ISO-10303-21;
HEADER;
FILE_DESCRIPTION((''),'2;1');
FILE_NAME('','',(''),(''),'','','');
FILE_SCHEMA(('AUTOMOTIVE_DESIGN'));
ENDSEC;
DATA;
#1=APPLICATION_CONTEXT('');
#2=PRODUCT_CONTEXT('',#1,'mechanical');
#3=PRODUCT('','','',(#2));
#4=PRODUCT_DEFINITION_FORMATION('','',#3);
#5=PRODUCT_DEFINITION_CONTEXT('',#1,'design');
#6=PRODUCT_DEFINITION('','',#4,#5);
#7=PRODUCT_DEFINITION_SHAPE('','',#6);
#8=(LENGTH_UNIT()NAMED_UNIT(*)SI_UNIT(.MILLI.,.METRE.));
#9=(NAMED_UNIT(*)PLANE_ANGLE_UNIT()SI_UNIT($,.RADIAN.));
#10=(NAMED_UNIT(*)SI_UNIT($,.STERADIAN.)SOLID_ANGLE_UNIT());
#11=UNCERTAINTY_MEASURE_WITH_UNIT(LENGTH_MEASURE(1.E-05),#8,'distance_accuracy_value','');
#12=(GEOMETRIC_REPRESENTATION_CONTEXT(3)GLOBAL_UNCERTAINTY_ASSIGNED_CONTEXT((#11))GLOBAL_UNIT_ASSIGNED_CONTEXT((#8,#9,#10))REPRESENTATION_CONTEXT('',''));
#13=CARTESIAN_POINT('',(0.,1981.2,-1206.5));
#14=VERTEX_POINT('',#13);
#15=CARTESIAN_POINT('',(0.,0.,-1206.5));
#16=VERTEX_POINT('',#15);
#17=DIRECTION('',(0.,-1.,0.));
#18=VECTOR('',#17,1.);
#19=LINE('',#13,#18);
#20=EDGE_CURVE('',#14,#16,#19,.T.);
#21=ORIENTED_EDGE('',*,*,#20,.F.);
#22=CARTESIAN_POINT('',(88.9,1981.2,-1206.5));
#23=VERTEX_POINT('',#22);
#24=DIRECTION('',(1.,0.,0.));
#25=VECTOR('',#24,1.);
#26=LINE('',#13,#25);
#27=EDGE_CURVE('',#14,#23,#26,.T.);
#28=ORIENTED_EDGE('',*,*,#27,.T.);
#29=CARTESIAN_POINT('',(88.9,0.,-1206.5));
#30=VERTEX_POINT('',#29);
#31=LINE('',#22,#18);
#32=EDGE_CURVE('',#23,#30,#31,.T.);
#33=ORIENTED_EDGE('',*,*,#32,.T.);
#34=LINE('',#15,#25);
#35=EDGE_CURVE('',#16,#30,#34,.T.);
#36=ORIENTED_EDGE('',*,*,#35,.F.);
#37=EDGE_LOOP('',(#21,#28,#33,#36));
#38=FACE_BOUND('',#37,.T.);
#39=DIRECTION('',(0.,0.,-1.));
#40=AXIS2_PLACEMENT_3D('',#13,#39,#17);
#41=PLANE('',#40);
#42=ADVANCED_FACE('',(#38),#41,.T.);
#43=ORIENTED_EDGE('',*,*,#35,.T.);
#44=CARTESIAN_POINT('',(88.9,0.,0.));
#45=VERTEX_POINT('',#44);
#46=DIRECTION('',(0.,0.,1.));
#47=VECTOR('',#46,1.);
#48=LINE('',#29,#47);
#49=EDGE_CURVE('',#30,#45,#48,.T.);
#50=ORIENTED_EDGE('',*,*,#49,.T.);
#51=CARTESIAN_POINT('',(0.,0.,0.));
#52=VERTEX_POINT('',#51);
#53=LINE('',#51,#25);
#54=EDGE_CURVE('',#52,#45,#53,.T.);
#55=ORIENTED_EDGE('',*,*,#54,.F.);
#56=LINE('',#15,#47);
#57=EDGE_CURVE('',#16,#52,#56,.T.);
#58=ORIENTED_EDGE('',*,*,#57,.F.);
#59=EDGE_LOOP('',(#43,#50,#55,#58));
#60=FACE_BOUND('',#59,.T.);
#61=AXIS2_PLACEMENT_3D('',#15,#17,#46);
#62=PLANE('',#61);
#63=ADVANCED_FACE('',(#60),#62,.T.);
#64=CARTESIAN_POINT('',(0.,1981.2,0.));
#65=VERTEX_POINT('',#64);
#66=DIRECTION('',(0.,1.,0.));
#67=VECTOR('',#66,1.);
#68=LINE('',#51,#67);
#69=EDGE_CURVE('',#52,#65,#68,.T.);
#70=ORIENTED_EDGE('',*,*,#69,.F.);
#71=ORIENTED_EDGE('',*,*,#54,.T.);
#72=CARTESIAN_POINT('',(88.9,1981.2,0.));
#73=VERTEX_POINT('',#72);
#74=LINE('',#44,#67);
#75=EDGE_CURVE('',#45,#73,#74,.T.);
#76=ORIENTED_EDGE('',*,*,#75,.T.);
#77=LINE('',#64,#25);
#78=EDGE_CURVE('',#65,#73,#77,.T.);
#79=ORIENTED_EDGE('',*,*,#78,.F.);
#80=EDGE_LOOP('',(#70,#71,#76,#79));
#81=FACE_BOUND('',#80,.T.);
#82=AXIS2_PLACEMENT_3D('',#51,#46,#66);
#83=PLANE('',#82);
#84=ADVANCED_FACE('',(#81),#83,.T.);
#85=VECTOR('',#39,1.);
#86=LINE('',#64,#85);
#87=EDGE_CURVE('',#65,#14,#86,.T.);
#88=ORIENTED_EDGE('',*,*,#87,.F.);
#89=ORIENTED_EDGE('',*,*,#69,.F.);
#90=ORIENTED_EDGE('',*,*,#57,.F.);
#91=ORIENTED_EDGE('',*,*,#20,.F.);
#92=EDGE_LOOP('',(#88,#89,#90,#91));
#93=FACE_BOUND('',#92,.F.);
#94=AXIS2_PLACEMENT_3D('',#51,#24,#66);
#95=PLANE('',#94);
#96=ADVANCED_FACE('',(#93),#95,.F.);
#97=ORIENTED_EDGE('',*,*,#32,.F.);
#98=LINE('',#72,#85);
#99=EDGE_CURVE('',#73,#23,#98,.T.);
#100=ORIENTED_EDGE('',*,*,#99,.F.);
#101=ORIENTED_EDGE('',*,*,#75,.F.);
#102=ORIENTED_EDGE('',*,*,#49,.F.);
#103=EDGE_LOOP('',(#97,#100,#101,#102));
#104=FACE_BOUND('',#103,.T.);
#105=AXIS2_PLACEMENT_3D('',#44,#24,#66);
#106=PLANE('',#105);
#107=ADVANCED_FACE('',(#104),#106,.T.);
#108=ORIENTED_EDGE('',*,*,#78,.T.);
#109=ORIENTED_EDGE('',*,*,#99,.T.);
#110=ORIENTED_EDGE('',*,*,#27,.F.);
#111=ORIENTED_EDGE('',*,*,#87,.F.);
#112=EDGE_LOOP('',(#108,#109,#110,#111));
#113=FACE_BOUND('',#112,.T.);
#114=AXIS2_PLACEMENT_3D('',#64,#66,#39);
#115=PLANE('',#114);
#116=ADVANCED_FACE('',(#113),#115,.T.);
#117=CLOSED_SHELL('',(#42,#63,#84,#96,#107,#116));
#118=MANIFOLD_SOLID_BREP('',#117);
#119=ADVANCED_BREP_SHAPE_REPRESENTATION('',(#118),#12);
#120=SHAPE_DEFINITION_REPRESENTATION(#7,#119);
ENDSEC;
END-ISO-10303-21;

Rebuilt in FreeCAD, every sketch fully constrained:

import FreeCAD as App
import Part
import Sketcher
from FreeCAD import Vector
Q = App.Units.Quantity

doc = App.newDocument("Part")
body = doc.addObject("PartDesign::Body", "Body")

# Sketch on YZ plane
sketch1 = body.newObject("Sketcher::SketchObject", "Sketch")
sketch1.AttachmentSupport = (doc.getObject("YZ_Plane"), [""])
sketch1.MapMode = "FlatFace"
sketch1.addGeometry([
    Part.LineSegment(Vector(1981.2, 0, 0), Vector(0, 0, 0)),
    Part.LineSegment(Vector(0, 0, 0), Vector(0, -1206.5, 0)),
    Part.LineSegment(Vector(0, -1206.5, 0), Vector(1981.2, -1206.5, 0)),
    Part.LineSegment(Vector(1981.2, -1206.5, 0), Vector(1981.2, 0, 0)),
], False)
sketch1.addConstraint([
    Sketcher.Constraint("Coincident", 0, 2, 1, 1),
    Sketcher.Constraint("Coincident", 1, 2, 2, 1),
    Sketcher.Constraint("Coincident", 2, 2, 3, 1),
    Sketcher.Constraint("Coincident", 3, 2, 0, 1),
    Sketcher.Constraint("Horizontal", 0),
    Sketcher.Constraint("Vertical", 1),
    Sketcher.Constraint("Horizontal", 2),
    Sketcher.Constraint("Vertical", 3),
    Sketcher.Constraint("Coincident", 0, 2, -1, 1),
    Sketcher.Constraint("DistanceX", 0, 2, 0, 1, Q("78 in")),
    Sketcher.Constraint("DistanceY", 1, 2, 1, 1, Q("47.5 in")),
])
pad1 = body.newObject("PartDesign::Pad", "Pad")
pad1.Profile = sketch1
pad1.Length = Q("3.5 in")

doc.recompute()
